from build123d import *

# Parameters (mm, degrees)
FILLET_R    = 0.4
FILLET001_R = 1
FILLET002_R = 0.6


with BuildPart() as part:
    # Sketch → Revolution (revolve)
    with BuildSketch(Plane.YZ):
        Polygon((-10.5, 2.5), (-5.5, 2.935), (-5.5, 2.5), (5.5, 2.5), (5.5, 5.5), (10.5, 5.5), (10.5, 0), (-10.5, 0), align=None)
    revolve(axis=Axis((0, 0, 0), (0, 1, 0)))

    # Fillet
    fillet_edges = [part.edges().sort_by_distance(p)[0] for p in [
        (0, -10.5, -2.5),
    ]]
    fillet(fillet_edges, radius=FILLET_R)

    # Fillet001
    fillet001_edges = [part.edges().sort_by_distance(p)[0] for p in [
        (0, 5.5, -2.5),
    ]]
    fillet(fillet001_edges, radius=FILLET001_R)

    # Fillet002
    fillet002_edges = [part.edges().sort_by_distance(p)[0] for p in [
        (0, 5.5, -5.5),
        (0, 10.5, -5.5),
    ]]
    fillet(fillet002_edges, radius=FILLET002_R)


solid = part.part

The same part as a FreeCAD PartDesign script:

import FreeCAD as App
import Part
import Sketcher
from FreeCAD import Vector


def edges_at(feature, points):
    """Names of the edges that pass closest to the given points."""
    edges = feature.Shape.Edges
    near = lambda p: min(range(len(edges)), key=lambda i: edges[i].distToShape(Part.Vertex(*p))[0])
    return sorted({f"Edge{near(p) + 1}" for p in points})

doc = App.newDocument("Part")
body = doc.addObject("PartDesign::Body", "Body")

# Sketch on YZ plane
sketch1 = doc.addObject("Sketcher::SketchObject", "Sketch")
body.addObject(sketch1)
sketch1.AttachmentSupport = (doc.YZ_Plane, [""])
sketch1.MapMode = "FlatFace"
sketch1.addGeometry([
    Part.LineSegment(Vector(-5.5, 2.94, 0), Vector(-10.5, 2.5, 0)),  # 0
    Part.LineSegment(Vector(-10.5, 2.5, 0), Vector(-10.5, 0, 0)),  # 1
    Part.LineSegment(Vector(-10.5, 0, 0), Vector(10.5, 0, 0)),  # 2
    Part.LineSegment(Vector(10.5, 0, 0), Vector(10.5, 5.5, 0)),  # 3
    Part.LineSegment(Vector(10.5, 5.5, 0), Vector(5.5, 5.5, 0)),  # 4
    Part.LineSegment(Vector(5.5, 5.5, 0), Vector(5.5, 2.5, 0)),  # 5
    Part.LineSegment(Vector(5.5, 2.5, 0), Vector(-5.5, 2.5, 0)),  # 6
    Part.LineSegment(Vector(-5.5, 2.5, 0), Vector(-5.5, 2.94, 0)),  # 7
], False)
sketch1.addConstraint([
    Sketcher.Constraint("Coincident", 0, 2, 1, 1),
    Sketcher.Constraint("Coincident", 1, 2, 2, 1),
    Sketcher.Constraint("Coincident", 2, 2, 3, 1),
    Sketcher.Constraint("Coincident", 3, 2, 4, 1),
    Sketcher.Constraint("Coincident", 4, 2, 5, 1),
    Sketcher.Constraint("Coincident", 5, 2, 6, 1),
    Sketcher.Constraint("Coincident", 6, 2, 7, 1),
    Sketcher.Constraint("Coincident", 7, 2, 0, 1),
    Sketcher.Constraint("Vertical", 1),
    Sketcher.Constraint("Horizontal", 2),
    Sketcher.Constraint("Vertical", 3),
    Sketcher.Constraint("Horizontal", 4),
    Sketcher.Constraint("Vertical", 5),
    Sketcher.Constraint("Horizontal", 6),
    Sketcher.Constraint("Vertical", 7),
    Sketcher.Constraint("Symmetric", 1, 2, 2, 2, -1, 1),
    Sketcher.Constraint("Horizontal", 0, 2, 5, 2),
    Sketcher.Constraint("DistanceX", 2, 1, 2, 2, 21.0),
    Sketcher.Constraint("DistanceX", 4, 2, 4, 1, 5.0),
    Sketcher.Constraint("DistanceX", 6, 2, 6, 1, 11.0),
    Sketcher.Constraint("DistanceY", 5, 2, 5, 1, 3.0),
    Sketcher.Constraint("DistanceY", 1, 2, 1, 1, 2.5),
    Sketcher.Constraint("DistanceY", 7, 1, 7, 2, 0.435),
])
revolution = doc.addObject("PartDesign::Revolution", "Revolution")
body.addObject(revolution)
revolution.Profile = sketch1
revolution.ReferenceAxis = (sketch1, ["H_Axis"])
revolution.Angle = 360
doc.recompute()

fillet = doc.addObject("PartDesign::Fillet", "Fillet")
body.addObject(fillet)
fillet.Base = (revolution, edges_at(revolution, [(0, -10.5, -2.5)]))
fillet.Radius = 0.4
doc.recompute()

fillet2 = doc.addObject("PartDesign::Fillet", "Fillet001")
body.addObject(fillet2)
fillet2.Base = (fillet, edges_at(fillet, [(0, 5.5, -2.5)]))
fillet2.Radius = 1
doc.recompute()

fillet3 = doc.addObject("PartDesign::Fillet", "Fillet002")
body.addObject(fillet3)
fillet3.Base = (fillet2, edges_at(fillet2, [(0, 5.5, -5.5), (0, 10.5, -5.5)]))
fillet3.Radius = 0.6

doc.recompute()
